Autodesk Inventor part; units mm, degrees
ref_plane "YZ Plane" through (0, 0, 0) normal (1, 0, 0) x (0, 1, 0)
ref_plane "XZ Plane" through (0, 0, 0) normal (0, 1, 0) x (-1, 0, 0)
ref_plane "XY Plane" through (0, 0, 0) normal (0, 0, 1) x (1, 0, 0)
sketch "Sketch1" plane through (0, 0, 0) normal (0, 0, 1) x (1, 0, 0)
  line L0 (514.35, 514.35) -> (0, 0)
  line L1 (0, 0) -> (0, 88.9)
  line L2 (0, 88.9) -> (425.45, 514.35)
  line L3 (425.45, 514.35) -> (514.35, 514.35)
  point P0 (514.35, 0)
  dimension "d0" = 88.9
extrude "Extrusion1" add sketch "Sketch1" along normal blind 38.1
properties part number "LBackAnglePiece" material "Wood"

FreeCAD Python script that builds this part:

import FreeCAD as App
import Part
import Sketcher

V = App.Vector
Q = App.Units.Quantity

doc = App.newDocument("Part")
body = doc.addObject("PartDesign::Body", "Body")

sketch1 = body.newObject("Sketcher::SketchObject", "Sketch")
sketch1.AttachmentSupport = (doc.getObject("XY_Plane"), [""])
sketch1.MapMode = "FlatFace"
sketch1.addGeometry(Part.LineSegment(V(0, 0, 0), V(514, 514, 0)), False)
sketch1.addGeometry(Part.LineSegment(V(514, 514, 0), V(425, 514, 0)), False)
sketch1.addGeometry(Part.LineSegment(V(425, 514, 0), V(0, 89, 0)), False)
sketch1.addGeometry(Part.LineSegment(V(0, 89, 0), V(0, 0, 0)), False)
sketch1.addConstraint(Sketcher.Constraint("Coincident", 0, 2, 1, 1))
sketch1.addConstraint(Sketcher.Constraint("Coincident", 1, 2, 2, 1))
sketch1.addConstraint(Sketcher.Constraint("Coincident", 2, 2, 3, 1))
sketch1.addConstraint(Sketcher.Constraint("Coincident", 3, 2, 0, 1))
sketch1.addConstraint(Sketcher.Constraint("Horizontal", 1))
sketch1.addConstraint(Sketcher.Constraint("Vertical", 3))
sketch1.addConstraint(Sketcher.Constraint("Coincident", 3, 2, -1, 1))
sketch1.addConstraint(Sketcher.Constraint("Parallel", 0, 2))
sketch1.addConstraint(Sketcher.Constraint("Equal", 1, 3))
sketch1.addConstraint(Sketcher.Constraint("DistanceX", 1, 2, 1, 1, Q("3.5 in")))
sketch1.addConstraint(Sketcher.Constraint("DistanceX", -1, 1, 0, 2, Q("20.25 in")))
pad1 = body.newObject("PartDesign::Pad", "Pad")
pad1.Profile = sketch1
pad1.Length = Q("1.5 in")

doc.recompute()
